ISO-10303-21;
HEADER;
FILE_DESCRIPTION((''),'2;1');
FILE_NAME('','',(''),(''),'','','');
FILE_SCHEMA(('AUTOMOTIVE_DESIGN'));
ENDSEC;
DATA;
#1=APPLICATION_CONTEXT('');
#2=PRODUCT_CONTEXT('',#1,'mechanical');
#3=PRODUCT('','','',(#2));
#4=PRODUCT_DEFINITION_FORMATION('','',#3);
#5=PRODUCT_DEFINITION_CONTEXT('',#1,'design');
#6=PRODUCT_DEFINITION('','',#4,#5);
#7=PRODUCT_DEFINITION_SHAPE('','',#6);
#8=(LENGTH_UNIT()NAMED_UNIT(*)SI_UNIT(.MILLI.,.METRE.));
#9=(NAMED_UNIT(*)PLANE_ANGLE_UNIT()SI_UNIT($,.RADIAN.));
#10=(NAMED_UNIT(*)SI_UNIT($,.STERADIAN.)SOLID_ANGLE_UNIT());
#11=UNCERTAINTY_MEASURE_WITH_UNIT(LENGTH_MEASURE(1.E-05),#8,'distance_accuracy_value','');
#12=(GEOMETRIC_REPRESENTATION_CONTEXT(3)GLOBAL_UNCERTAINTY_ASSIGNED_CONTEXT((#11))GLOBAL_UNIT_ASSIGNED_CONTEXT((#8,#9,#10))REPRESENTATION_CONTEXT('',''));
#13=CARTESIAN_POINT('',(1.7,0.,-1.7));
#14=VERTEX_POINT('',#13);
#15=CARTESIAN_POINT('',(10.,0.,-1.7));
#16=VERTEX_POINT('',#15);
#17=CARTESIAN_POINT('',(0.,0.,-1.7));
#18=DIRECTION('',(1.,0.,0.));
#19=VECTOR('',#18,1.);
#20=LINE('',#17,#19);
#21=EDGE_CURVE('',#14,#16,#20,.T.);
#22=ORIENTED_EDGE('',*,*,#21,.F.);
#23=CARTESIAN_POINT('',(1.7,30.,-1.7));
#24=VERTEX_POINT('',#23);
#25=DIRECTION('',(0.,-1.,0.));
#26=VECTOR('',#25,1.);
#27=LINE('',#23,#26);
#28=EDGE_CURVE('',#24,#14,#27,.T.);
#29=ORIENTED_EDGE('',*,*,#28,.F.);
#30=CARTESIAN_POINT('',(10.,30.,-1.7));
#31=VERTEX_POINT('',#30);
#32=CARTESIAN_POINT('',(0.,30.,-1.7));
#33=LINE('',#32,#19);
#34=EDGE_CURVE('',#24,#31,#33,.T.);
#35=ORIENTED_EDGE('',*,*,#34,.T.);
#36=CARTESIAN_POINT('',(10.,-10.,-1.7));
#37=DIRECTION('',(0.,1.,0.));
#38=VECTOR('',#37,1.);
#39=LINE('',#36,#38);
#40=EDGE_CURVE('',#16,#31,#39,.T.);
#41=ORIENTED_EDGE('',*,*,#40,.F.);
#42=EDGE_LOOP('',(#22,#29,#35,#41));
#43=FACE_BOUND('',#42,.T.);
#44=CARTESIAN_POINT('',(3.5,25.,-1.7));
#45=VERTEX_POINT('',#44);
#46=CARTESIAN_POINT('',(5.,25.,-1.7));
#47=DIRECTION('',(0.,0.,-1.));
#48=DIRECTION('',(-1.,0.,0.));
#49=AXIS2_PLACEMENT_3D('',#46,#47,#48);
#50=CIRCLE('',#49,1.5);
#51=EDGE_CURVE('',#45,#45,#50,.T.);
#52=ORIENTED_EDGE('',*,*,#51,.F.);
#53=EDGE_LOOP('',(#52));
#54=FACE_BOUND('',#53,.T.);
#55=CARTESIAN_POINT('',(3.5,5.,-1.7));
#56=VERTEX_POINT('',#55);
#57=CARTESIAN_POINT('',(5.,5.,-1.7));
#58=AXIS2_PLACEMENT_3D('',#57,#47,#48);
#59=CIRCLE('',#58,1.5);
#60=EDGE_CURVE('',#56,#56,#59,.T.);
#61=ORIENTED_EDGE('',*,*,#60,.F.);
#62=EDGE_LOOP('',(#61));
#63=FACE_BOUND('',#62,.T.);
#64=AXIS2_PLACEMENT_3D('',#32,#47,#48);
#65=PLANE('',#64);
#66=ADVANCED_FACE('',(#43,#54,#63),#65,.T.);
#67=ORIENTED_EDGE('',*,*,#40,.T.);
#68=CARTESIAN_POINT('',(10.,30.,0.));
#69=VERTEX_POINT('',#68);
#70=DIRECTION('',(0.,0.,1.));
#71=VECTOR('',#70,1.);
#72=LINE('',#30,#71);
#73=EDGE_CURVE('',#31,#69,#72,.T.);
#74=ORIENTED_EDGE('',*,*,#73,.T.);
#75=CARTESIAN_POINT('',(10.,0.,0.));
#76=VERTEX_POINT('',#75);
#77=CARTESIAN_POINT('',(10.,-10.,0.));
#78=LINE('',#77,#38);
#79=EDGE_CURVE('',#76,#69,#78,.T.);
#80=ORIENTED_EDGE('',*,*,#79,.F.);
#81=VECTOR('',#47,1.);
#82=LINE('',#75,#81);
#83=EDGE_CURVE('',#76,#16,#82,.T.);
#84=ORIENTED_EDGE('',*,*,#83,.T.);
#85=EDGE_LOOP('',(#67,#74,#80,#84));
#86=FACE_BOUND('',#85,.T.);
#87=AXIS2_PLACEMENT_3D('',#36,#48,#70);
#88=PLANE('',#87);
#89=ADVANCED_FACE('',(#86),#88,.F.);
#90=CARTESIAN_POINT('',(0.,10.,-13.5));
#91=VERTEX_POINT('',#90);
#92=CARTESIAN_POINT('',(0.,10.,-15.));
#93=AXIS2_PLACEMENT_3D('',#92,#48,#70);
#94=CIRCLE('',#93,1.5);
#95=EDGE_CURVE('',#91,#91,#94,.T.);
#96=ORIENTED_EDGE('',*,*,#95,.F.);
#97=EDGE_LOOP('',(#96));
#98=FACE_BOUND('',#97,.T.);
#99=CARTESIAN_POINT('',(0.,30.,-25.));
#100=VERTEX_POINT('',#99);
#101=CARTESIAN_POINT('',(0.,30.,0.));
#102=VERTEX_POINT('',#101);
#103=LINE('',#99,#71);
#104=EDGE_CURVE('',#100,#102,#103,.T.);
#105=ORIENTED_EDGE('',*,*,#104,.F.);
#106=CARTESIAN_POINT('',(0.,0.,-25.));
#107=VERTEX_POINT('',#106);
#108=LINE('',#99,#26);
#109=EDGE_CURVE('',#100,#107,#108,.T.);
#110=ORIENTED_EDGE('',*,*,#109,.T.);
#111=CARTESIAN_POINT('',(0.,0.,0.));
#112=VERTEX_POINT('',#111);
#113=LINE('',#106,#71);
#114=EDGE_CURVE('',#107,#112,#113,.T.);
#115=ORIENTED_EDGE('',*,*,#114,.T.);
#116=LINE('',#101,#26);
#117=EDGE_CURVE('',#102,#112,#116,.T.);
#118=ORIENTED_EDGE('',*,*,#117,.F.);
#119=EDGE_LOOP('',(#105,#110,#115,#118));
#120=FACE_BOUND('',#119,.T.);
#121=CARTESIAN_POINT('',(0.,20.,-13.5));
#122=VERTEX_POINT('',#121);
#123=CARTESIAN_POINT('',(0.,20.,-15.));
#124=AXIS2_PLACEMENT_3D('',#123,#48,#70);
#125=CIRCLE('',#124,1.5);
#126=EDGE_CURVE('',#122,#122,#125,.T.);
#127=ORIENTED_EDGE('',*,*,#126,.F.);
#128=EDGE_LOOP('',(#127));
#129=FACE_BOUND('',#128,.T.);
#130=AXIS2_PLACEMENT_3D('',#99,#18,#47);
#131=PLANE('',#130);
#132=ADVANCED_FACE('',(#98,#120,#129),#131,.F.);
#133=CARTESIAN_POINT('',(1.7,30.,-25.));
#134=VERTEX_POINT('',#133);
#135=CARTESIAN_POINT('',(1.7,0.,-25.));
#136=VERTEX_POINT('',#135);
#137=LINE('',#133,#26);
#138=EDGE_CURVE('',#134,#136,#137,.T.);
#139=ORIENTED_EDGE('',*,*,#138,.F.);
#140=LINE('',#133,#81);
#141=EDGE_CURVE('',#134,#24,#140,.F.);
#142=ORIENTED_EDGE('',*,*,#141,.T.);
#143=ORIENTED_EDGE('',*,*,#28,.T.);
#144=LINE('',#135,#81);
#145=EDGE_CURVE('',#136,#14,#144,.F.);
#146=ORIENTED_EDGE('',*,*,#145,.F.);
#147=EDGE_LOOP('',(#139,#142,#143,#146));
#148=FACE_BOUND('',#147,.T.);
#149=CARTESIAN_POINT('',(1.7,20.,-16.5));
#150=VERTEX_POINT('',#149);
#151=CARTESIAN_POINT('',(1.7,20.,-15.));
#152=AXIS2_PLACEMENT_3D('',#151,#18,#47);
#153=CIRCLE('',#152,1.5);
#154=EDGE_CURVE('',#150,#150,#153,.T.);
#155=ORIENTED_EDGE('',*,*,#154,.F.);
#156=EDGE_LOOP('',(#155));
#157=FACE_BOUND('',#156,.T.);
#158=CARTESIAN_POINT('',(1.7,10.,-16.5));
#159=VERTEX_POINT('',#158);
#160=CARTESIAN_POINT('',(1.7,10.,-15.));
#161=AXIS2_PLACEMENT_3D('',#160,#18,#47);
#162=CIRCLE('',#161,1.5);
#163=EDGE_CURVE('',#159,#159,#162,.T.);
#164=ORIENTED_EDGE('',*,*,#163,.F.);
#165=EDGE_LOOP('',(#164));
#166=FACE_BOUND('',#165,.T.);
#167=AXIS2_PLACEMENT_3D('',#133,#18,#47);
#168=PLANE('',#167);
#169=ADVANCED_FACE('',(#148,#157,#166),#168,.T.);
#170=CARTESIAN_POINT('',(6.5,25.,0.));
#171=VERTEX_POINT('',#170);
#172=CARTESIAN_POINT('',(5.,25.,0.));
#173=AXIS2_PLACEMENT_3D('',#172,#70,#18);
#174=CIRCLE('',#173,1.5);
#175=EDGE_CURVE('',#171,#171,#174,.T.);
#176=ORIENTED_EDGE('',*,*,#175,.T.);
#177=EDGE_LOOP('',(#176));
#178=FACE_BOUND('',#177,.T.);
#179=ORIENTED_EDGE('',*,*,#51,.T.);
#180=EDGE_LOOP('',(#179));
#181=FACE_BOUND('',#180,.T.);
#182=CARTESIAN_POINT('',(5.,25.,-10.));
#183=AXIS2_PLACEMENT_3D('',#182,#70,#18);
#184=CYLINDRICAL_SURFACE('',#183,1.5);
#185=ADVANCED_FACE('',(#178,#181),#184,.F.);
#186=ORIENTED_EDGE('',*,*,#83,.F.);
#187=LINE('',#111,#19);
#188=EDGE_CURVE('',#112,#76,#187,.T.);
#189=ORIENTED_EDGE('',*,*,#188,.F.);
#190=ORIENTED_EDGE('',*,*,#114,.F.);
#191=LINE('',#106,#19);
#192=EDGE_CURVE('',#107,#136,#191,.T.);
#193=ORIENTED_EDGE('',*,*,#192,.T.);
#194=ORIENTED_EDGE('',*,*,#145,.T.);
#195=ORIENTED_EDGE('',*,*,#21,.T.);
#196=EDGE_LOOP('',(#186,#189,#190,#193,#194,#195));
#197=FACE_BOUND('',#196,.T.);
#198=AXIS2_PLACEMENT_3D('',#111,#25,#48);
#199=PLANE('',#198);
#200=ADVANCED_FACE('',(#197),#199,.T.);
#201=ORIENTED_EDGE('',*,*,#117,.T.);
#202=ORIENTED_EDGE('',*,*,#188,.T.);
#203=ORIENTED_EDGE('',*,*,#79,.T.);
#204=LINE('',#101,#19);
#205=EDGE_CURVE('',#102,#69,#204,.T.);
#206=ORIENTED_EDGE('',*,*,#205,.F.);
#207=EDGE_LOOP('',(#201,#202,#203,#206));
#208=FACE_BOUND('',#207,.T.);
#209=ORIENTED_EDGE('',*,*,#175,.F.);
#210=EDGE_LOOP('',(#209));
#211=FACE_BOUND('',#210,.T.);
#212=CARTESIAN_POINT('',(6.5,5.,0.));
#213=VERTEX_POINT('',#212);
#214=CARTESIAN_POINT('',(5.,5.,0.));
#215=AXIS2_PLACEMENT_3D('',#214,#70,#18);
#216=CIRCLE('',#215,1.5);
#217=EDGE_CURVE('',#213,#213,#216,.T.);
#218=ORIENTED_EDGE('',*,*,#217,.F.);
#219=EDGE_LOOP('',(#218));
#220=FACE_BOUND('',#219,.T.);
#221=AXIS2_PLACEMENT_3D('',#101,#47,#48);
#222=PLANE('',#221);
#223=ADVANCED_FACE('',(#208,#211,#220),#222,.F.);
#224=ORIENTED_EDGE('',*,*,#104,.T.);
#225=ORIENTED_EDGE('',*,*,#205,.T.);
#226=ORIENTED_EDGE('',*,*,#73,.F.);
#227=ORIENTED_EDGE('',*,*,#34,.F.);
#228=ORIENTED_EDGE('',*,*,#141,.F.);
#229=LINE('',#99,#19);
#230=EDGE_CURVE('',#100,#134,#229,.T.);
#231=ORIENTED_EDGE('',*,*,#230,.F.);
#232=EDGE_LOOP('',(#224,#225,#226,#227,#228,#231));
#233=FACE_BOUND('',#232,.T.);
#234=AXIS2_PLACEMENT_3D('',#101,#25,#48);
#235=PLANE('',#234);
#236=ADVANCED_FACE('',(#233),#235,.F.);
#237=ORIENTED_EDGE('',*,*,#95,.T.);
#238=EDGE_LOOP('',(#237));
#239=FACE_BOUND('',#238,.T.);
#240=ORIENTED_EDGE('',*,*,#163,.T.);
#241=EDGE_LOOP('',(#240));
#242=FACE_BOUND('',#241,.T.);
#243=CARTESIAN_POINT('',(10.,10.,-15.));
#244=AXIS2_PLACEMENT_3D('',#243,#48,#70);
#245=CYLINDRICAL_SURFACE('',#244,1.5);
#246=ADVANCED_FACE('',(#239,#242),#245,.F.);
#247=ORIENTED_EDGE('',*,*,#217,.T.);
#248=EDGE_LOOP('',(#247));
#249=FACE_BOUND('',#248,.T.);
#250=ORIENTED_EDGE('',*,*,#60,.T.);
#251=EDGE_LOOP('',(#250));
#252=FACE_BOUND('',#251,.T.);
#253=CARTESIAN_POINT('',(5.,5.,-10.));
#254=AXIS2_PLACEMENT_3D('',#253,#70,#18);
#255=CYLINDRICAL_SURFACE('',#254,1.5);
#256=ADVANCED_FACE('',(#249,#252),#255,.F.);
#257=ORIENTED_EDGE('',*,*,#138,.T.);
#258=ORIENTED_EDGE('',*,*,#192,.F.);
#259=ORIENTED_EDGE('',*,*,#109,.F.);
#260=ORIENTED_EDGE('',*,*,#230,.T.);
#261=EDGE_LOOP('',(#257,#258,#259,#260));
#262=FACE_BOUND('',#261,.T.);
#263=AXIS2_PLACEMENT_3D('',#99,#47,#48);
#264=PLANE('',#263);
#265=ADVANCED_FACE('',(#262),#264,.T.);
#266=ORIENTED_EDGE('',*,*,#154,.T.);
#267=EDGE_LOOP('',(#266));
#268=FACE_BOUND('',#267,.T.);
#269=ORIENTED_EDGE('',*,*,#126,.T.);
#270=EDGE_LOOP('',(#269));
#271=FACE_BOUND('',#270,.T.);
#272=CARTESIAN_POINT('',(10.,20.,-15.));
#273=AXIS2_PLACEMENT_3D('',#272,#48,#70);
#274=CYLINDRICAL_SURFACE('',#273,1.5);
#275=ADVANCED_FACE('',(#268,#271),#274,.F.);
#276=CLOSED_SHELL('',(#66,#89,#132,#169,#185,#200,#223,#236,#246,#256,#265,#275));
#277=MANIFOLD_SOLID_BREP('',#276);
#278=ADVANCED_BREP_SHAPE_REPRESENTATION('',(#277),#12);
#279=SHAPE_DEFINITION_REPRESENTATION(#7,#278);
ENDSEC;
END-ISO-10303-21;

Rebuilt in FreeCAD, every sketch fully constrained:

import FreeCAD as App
import Part
import Sketcher
from FreeCAD import Vector
Q = App.Units.Quantity

doc = App.newDocument("Part")
body = doc.addObject("PartDesign::Body", "Body")

sketch1 = body.newObject("Sketcher::SketchObject", "Sketch")
sketch1.AttachmentSupport = (doc.getObject("XZ_Plane"), [""])
sketch1.MapMode = "FlatFace"
sketch1.addGeometry([
    Part.LineSegment(Vector(0, -25, 0), Vector(0, 0, 0)),
    Part.LineSegment(Vector(0, 0, 0), Vector(25, 0, 0)),
    Part.LineSegment(Vector(25, 0, 0), Vector(25, -1.7, 0)),
    Part.LineSegment(Vector(25, -1.7, 0), Vector(1.7, -1.7, 0)),
    Part.LineSegment(Vector(1.7, -1.7, 0), Vector(1.7, -25, 0)),
    Part.LineSegment(Vector(1.7, -25, 0), Vector(0, -25, 0)),
], False)
sketch1.addConstraint([
    Sketcher.Constraint("Coincident", 0, 2, 1, 1),
    Sketcher.Constraint("Coincident", 1, 2, 2, 1),
    Sketcher.Constraint("Coincident", 2, 2, 3, 1),
    Sketcher.Constraint("Coincident", 3, 2, 4, 1),
    Sketcher.Constraint("Coincident", 4, 2, 5, 1),
    Sketcher.Constraint("Coincident", 5, 2, 0, 1),
    Sketcher.Constraint("Vertical", 0),
    Sketcher.Constraint("Horizontal", 1),
    Sketcher.Constraint("Vertical", 2),
    Sketcher.Constraint("Horizontal", 3),
    Sketcher.Constraint("Vertical", 4),
    Sketcher.Constraint("Horizontal", 5),
    Sketcher.Constraint("Coincident", 0, 2, -1, 1),
    Sketcher.Constraint("Equal", 1, 0),
    Sketcher.Constraint("Equal", 5, 2),
    Sketcher.Constraint("DistanceX", 1, 1, 1, 2, Q("25 mm")),
    Sketcher.Constraint("DistanceX", 3, 2, 3, 1, Q("23.3 mm")),
])
pad1 = body.newObject("PartDesign::Pad", "Pad")
pad1.Profile = sketch1
pad1.Length = 30
pad1.Reversed = True

sketch2 = body.newObject("Sketcher::SketchObject", "Sketch001")
sketch2.AttachmentSupport = (doc.getObject("XY_Plane"), [""])
sketch2.MapMode = "FlatFace"
sketch2.addGeometry([
    Part.Circle(Vector(5, 25, 0), Vector(0, 0, 1), 1.5),
    Part.Circle(Vector(5, 5, 0), Vector(0, 0, 1), 1.5),
], False)
sketch2.addConstraint([
    Sketcher.Constraint("Equal", 0, 1),
    Sketcher.Constraint("Vertical", 0, 3, 1, 3),
    Sketcher.Constraint("Diameter", 0, Q("3 mm")),
    Sketcher.Constraint("DistanceX", -1, 1, 0, 3, Q("5 mm")),
    Sketcher.Constraint("DistanceY", -1, 1, 0, 3, Q("25 mm")),
    Sketcher.Constraint("DistanceY", -1, 1, 1, 3, Q("5 mm")),
])
pocket1 = body.newObject("PartDesign::Pocket", "Pocket")
pocket1.Profile = sketch2
pocket1.Length = 10

sketch3 = body.newObject("Sketcher::SketchObject", "Sketch002")
sketch3.AttachmentSupport = (doc.getObject("YZ_Plane"), [""])
sketch3.MapMode = "FlatFace"
sketch3.addGeometry([
    Part.Circle(Vector(10, -15, 0), Vector(0, 0, 1), 1.5),
    Part.Circle(Vector(20, -15, 0), Vector(0, 0, 1), 1.5),
], False)
sketch3.addConstraint([
    Sketcher.Constraint("Equal", 0, 1),
    Sketcher.Constraint("Horizontal", 0, 3, 1, 3),
    Sketcher.Constraint("Diameter", 0, Q("3 mm")),
    Sketcher.Constraint("DistanceX", -1, 1, 0, 3, Q("10 mm")),
    Sketcher.Constraint("DistanceY", 0, 3, -1, 1, Q("15 mm")),
    Sketcher.Constraint("DistanceX", -1, 1, 1, 3, Q("20 mm")),
])
pocket2 = body.newObject("PartDesign::Pocket", "Pocket001")
pocket2.Profile = sketch3
pocket2.Length = 10
pocket2.Reversed = True

sketch4 = body.newObject("Sketcher::SketchObject", "Sketch003")
sketch4.AttachmentSupport = (doc.getObject("XZ_Plane"), [""])
sketch4.MapMode = "FlatFace"
sketch4.AttachmentOffset = App.Placement(Vector(0, 0, -30), App.Rotation())
sketch4.addGeometry([
    Part.LineSegment(Vector(10, -1.7, 0), Vector(10, 0, 0)),
    Part.LineSegment(Vector(10, 0, 0), Vector(25, 0, 0)),
    Part.LineSegment(Vector(25, 0, 0), Vector(25, -1.7, 0)),
    Part.LineSegment(Vector(25, -1.7, 0), Vector(10, -1.7, 0)),
], False)
sketch4.addConstraint([
    Sketcher.Constraint("Coincident", 0, 2, 1, 1),
    Sketcher.Constraint("Coincident", 1, 2, 2, 1),
    Sketcher.Constraint("Coincident", 2, 2, 3, 1),
    Sketcher.Constraint("Coincident", 3, 2, 0, 1),
    Sketcher.Constraint("Vertical", 0),
    Sketcher.Constraint("Horizontal", 1),
    Sketcher.Constraint("Vertical", 2),
    Sketcher.Constraint("Horizontal", 3),
    Sketcher.Constraint("PointOnObject", 0, 2, -1),
    Sketcher.Constraint("DistanceX", 1, 1, 1, 2, Q("15 mm")),
    Sketcher.Constraint("DistanceY", 0, 1, 0, 2, Q("1.7 mm")),
    Sketcher.Constraint("DistanceX", -1, 1, 0, 2, Q("10 mm")),
])
pocket3 = body.newObject("PartDesign::Pocket", "Pocket002")
pocket3.Profile = sketch4
pocket3.Length = 40
pocket3.Reversed = True

doc.recompute()
